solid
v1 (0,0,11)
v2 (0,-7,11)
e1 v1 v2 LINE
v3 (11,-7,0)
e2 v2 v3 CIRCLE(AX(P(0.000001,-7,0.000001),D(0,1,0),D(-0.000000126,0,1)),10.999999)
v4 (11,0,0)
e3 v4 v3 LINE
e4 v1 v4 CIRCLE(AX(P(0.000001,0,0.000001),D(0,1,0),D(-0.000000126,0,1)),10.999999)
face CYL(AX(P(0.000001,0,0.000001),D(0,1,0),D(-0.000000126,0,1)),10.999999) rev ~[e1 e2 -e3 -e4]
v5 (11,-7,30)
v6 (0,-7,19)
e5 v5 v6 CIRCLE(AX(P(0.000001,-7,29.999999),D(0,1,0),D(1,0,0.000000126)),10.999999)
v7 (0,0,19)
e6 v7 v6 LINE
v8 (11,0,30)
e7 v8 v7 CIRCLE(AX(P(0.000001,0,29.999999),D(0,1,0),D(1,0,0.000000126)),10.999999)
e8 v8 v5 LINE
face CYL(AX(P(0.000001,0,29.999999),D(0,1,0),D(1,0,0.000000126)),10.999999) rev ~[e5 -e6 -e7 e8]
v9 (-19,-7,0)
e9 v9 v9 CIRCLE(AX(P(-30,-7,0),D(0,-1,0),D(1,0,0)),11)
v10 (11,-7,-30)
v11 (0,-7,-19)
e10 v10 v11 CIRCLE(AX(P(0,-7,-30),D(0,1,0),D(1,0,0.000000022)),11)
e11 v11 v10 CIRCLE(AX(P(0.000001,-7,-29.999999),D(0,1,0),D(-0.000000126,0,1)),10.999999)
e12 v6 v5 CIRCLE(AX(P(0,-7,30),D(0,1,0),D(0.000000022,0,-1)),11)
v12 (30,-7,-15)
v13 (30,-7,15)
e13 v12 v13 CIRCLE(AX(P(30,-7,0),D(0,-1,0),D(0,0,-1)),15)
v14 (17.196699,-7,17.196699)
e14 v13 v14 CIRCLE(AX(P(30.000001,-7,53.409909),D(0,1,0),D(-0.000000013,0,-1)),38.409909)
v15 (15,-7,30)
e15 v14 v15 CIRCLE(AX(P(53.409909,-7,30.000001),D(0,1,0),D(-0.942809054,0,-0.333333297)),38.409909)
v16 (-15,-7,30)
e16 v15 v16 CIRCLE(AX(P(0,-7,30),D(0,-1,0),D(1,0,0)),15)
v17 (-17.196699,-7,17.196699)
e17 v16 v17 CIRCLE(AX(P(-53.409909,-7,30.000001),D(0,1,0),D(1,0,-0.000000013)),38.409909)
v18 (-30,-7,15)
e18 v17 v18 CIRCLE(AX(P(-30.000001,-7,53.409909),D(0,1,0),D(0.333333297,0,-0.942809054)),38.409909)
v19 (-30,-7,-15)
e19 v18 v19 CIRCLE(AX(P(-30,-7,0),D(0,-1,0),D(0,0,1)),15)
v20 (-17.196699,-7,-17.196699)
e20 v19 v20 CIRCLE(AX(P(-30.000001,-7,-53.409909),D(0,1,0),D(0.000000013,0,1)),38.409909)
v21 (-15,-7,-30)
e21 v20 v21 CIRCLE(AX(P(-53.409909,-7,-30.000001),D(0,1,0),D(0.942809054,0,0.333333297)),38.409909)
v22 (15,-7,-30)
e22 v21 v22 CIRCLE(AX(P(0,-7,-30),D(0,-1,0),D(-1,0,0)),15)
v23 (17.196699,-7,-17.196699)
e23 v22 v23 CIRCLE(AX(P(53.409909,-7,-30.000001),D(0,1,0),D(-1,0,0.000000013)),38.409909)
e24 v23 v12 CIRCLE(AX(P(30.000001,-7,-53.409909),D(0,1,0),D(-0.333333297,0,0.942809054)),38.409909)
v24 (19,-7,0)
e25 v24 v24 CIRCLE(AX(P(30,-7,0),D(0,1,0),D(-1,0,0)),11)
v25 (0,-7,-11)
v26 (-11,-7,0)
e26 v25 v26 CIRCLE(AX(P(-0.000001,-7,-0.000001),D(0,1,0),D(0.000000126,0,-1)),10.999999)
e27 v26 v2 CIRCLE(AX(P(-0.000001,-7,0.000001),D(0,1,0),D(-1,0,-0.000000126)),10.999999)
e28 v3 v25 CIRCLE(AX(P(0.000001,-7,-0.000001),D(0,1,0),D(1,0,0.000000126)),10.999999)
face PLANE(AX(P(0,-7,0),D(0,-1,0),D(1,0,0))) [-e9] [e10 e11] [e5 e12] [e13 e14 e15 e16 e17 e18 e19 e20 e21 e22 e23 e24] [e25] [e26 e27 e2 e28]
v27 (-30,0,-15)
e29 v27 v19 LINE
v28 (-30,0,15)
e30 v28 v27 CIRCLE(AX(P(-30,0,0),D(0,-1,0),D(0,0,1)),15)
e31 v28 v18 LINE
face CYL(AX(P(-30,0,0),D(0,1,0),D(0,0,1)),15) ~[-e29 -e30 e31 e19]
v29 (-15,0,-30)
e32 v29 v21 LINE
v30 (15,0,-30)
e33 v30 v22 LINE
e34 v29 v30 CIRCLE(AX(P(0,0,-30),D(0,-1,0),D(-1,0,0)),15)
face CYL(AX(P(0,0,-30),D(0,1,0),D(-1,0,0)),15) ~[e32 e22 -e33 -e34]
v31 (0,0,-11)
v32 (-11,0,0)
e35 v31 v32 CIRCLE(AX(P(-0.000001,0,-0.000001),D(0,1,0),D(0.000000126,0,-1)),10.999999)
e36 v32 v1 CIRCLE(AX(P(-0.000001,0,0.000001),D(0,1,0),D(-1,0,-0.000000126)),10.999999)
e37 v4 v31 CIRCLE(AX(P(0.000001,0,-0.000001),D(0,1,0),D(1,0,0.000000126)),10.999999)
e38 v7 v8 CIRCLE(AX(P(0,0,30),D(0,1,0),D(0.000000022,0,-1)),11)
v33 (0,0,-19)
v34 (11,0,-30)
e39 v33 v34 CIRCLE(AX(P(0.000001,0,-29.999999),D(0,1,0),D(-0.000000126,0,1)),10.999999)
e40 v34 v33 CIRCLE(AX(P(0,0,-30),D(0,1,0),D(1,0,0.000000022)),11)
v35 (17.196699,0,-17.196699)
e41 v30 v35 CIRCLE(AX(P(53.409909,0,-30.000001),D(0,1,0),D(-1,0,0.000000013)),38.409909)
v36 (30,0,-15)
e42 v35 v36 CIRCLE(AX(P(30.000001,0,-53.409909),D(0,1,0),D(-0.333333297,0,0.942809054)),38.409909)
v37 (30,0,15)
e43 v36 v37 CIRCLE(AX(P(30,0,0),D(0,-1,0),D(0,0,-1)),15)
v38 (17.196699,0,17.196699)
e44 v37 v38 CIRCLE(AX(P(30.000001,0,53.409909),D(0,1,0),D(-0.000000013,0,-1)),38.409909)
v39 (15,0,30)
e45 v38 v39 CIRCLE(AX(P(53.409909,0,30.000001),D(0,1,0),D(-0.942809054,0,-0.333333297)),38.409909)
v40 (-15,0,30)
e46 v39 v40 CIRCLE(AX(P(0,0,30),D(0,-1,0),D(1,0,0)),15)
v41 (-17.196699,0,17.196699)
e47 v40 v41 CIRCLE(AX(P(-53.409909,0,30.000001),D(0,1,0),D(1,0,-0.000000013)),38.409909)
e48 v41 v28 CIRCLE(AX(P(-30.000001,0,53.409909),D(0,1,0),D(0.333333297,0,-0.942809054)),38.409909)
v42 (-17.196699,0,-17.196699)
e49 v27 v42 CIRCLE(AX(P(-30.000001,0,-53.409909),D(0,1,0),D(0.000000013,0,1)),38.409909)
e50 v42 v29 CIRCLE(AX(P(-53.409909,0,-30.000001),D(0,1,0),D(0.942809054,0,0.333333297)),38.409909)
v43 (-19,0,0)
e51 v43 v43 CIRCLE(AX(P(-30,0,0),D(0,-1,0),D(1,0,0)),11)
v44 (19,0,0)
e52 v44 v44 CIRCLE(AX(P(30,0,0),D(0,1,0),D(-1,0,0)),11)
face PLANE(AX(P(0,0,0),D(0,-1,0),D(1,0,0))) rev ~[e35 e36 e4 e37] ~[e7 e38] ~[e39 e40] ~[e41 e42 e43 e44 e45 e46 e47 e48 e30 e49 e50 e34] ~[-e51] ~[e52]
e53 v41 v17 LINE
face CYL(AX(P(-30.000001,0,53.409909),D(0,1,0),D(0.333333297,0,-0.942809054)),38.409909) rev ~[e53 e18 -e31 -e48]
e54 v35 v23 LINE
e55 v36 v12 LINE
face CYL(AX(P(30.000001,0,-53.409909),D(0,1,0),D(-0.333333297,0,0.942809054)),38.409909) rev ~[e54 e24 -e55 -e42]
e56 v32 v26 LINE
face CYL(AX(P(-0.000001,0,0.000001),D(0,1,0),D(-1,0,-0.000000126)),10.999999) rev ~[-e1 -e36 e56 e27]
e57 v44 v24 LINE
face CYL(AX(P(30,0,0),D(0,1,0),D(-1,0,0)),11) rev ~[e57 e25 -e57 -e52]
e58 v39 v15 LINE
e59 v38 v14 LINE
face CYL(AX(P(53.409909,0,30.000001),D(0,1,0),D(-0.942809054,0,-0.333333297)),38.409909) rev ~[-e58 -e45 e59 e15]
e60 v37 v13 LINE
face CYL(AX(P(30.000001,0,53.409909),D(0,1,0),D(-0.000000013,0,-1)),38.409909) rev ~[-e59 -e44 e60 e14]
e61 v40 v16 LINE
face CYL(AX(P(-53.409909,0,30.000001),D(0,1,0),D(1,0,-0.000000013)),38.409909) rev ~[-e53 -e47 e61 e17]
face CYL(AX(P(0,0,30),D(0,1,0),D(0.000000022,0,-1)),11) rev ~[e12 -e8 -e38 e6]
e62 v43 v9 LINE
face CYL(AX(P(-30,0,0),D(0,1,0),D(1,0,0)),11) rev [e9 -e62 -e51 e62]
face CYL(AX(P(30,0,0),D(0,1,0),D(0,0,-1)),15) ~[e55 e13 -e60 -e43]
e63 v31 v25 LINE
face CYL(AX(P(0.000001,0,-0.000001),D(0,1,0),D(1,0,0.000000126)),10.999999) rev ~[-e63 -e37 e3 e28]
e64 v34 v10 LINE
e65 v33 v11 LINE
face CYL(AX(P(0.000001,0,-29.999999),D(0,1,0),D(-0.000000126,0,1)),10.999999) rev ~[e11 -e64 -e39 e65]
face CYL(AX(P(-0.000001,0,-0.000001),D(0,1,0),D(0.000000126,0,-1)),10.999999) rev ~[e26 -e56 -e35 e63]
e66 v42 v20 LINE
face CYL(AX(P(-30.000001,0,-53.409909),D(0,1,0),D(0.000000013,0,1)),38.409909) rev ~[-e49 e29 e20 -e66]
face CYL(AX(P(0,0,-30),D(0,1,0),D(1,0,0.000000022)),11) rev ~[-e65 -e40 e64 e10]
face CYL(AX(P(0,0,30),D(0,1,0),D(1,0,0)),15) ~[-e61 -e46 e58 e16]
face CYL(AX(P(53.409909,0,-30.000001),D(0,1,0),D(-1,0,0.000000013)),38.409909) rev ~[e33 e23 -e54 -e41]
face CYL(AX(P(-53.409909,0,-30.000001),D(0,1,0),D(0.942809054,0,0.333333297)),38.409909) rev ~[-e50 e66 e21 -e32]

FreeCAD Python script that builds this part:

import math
import FreeCAD as App
import Part
import Sketcher

doc = App.newDocument("Part")
body = doc.addObject("PartDesign::Body", "Body")

# Sketch on XZ plane
sketch1 = body.newObject("Sketcher::SketchObject", "Sketch")
sketch1.AttachmentSupport = (doc.getObject("XZ_Plane"), [""])
sketch1.MapMode = "FlatFace"
sketch1.addGeometry(Part.ArcOfCircle(Part.Circle(App.Vector(30, 0, 0), App.Vector(0, 0, 1), 15), math.radians(-90), math.radians(90)), False)
sketch1.addGeometry(Part.ArcOfCircle(Part.Circle(App.Vector(30, 53, 0), App.Vector(0, 0, 1), 38), math.radians(-109.47), math.radians(-90)), False)
sketch1.addGeometry(Part.ArcOfCircle(Part.Circle(App.Vector(53, 30, 0), App.Vector(0, 0, 1), 38), math.radians(-180), math.radians(-160.53)), False)
sketch1.addGeometry(Part.ArcOfCircle(Part.Circle(App.Vector(0, 30, 0), App.Vector(0, 0, 1), 15), math.radians(0), math.radians(180)), False)
sketch1.addGeometry(Part.ArcOfCircle(Part.Circle(App.Vector(-53, 30, 0), App.Vector(0, 0, 1), 38), math.radians(-19.47), math.radians(0)), False)
sketch1.addGeometry(Part.ArcOfCircle(Part.Circle(App.Vector(-30, 53, 0), App.Vector(0, 0, 1), 38), math.radians(-90), math.radians(-70.53)), False)
sketch1.addGeometry(Part.ArcOfCircle(Part.Circle(App.Vector(-30, 0, 0), App.Vector(0, 0, 1), 15), math.radians(90), math.radians(270)), False)
sketch1.addGeometry(Part.ArcOfCircle(Part.Circle(App.Vector(-30, -53, 0), App.Vector(0, 0, 1), 38), math.radians(70.53), math.radians(90)), False)
sketch1.addGeometry(Part.ArcOfCircle(Part.Circle(App.Vector(-53, -30, 0), App.Vector(0, 0, 1), 38), math.radians(0), math.radians(19.47)), False)
sketch1.addGeometry(Part.ArcOfCircle(Part.Circle(App.Vector(0, -30, 0), App.Vector(0, 0, 1), 15), math.radians(180), math.radians(360)), False)
sketch1.addGeometry(Part.ArcOfCircle(Part.Circle(App.Vector(53, -30, 0), App.Vector(0, 0, 1), 38), math.radians(160.53), math.radians(180)), False)
sketch1.addGeometry(Part.ArcOfCircle(Part.Circle(App.Vector(30, -53, 0), App.Vector(0, 0, 1), 38), math.radians(90), math.radians(109.47)), False)
sketch1.addGeometry(Part.ArcOfCircle(Part.Circle(App.Vector(0, -30, 0), App.Vector(0, 0, 1), 11), math.radians(0), math.radians(90)), False)
sketch1.addGeometry(Part.ArcOfCircle(Part.Circle(App.Vector(0, -30, 0), App.Vector(0, 0, 1), 11), math.radians(90), math.radians(360)), False)
sketch1.addGeometry(Part.Circle(App.Vector(-30, 0, 0), App.Vector(0, 0, 1), 11), False)
sketch1.addGeometry(Part.ArcOfCircle(Part.Circle(App.Vector(0, 30, 0), App.Vector(0, 0, 1), 11), math.radians(0), math.radians(270)), False)
sketch1.addGeometry(Part.ArcOfCircle(Part.Circle(App.Vector(0, 30, 0), App.Vector(0, 0, 1), 11), math.radians(-90), math.radians(0)), False)
sketch1.addGeometry(Part.ArcOfCircle(Part.Circle(App.Vector(0, 0, 0), App.Vector(0, 0, 1), 11), math.radians(0), math.radians(90)), False)
sketch1.addGeometry(Part.ArcOfCircle(Part.Circle(App.Vector(0, 0, 0), App.Vector(0, 0, 1), 11), math.radians(-90), math.radians(0)), False)
sketch1.addGeometry(Part.ArcOfCircle(Part.Circle(App.Vector(0, 0, 0), App.Vector(0, 0, 1), 11), math.radians(180), math.radians(270)), False)
sketch1.addGeometry(Part.ArcOfCircle(Part.Circle(App.Vector(0, 0, 0), App.Vector(0, 0, 1), 11), math.radians(90), math.radians(180)), False)
sketch1.addGeometry(Part.Circle(App.Vector(30, 0, 0), App.Vector(0, 0, 1), 11), False)
sketch1.addConstraint(Sketcher.Constraint("Tangent", 0, 2, 1, 2))
sketch1.addConstraint(Sketcher.Constraint("Coincident", 1, 1, 2, 2))
sketch1.addConstraint(Sketcher.Constraint("Tangent", 2, 1, 3, 1))
sketch1.addConstraint(Sketcher.Constraint("Tangent", 3, 2, 4, 2))
sketch1.addConstraint(Sketcher.Constraint("Coincident", 4, 1, 5, 2))
sketch1.addConstraint(Sketcher.Constraint("Tangent", 5, 1, 6, 1))
sketch1.addConstraint(Sketcher.Constraint("Tangent", 6, 2, 7, 2))
sketch1.addConstraint(Sketcher.Constraint("Coincident", 7, 1, 8, 2))
sketch1.addConstraint(Sketcher.Constraint("Tangent", 8, 1, 9, 1))
sketch1.addConstraint(Sketcher.Constraint("Tangent", 9, 2, 10, 2))
sketch1.addConstraint(Sketcher.Constraint("Coincident", 10, 1, 11, 2))
sketch1.addConstraint(Sketcher.Constraint("Tangent", 11, 1, 0, 1))
sketch1.addConstraint(Sketcher.Constraint("Tangent", 12, 1, 13, 2))
sketch1.addConstraint(Sketcher.Constraint("Coincident", 13, 1, 12, 2))
sketch1.addConstraint(Sketcher.Constraint("Tangent", 15, 1, 16, 2))
sketch1.addConstraint(Sketcher.Constraint("Coincident", 16, 1, 15, 2))
sketch1.addConstraint(Sketcher.Constraint("Tangent", 17, 1, 18, 2))
sketch1.addConstraint(Sketcher.Constraint("Tangent", 18, 1, 19, 2))
sketch1.addConstraint(Sketcher.Constraint("Tangent", 19, 1, 20, 2))
sketch1.addConstraint(Sketcher.Constraint("Tangent", 20, 1, 17, 2))
sketch1.addConstraint(Sketcher.Constraint("Coincident", 17, 3, -1, 1))
sketch1.addConstraint(Sketcher.Constraint("Coincident", 12, 3, 9, 3))
sketch1.addConstraint(Sketcher.Constraint("Coincident", 14, 3, 6, 3))
sketch1.addConstraint(Sketcher.Constraint("Coincident", 15, 3, 3, 3))
sketch1.addConstraint(Sketcher.Constraint("Coincident", 21, 3, 0, 3))
sketch1.addConstraint(Sketcher.Constraint("Equal", 1, 2))
sketch1.addConstraint(Sketcher.Constraint("Equal", 0, 3))
sketch1.addConstraint(Sketcher.Constraint("Equal", 2, 4))
sketch1.addConstraint(Sketcher.Constraint("Equal", 4, 5))
sketch1.addConstraint(Sketcher.Constraint("Equal", 3, 6))
sketch1.addConstraint(Sketcher.Constraint("Equal", 5, 7))
sketch1.addConstraint(Sketcher.Constraint("Equal", 7, 8))
sketch1.addConstraint(Sketcher.Constraint("Equal", 6, 9))
sketch1.addConstraint(Sketcher.Constraint("Equal", 8, 10))
sketch1.addConstraint(Sketcher.Constraint("Equal", 10, 11))
sketch1.addConstraint(Sketcher.Constraint("Equal", 13, 14))
sketch1.addConstraint(Sketcher.Constraint("Equal", 14, 15))
sketch1.addConstraint(Sketcher.Constraint("Equal", 16, 17))
sketch1.addConstraint(Sketcher.Constraint("Equal", 17, 18))
sketch1.addConstraint(Sketcher.Constraint("Equal", 20, 21))
sketch1.addConstraint(Sketcher.Constraint("Symmetric", 0, 3, 6, 3, -1, 1))
sketch1.addConstraint(Sketcher.Constraint("Symmetric", 2, 3, 8, 3, -1, 1))
sketch1.addConstraint(Sketcher.Constraint("Symmetric", 4, 1, 10, 1, -1, 1))
sketch1.addConstraint(Sketcher.Constraint("Symmetric", 13, 1, 16, 1, -1, 1))
sketch1.addConstraint(Sketcher.Constraint("Symmetric", 2, 3, 4, 3, -2))
sketch1.addConstraint(Sketcher.Constraint("Symmetric", 1, 3, 5, 3, -2))
sketch1.addConstraint(Sketcher.Constraint("PointOnObject", 13, 1, -2))
sketch1.addConstraint(Sketcher.Constraint("PointOnObject", 17, 1, -1))
sketch1.addConstraint(Sketcher.Constraint("PointOnObject", 18, 1, -2))
sketch1.addConstraint(Sketcher.Constraint("PointOnObject", 19, 1, -1))
sketch1.addConstraint(Sketcher.Constraint("PointOnObject", 20, 1, -2))
sketch1.addConstraint(Sketcher.Constraint("Horizontal", 2, 3, 3, 3))
sketch1.addConstraint(Sketcher.Constraint("Horizontal", 7, 1, 10, 1))
sketch1.addConstraint(Sketcher.Constraint("Horizontal", 9, 2, 12, 1))
sketch1.addConstraint(Sketcher.Constraint("Horizontal", 3, 2, 15, 1))
sketch1.addConstraint(Sketcher.Constraint("Vertical", 0, 3, 1, 3))
sketch1.addConstraint(Sketcher.Constraint("Diameter", 14, 22.0))
sketch1.addConstraint(Sketcher.Constraint("Radius", 0, 15.0))
sketch1.addConstraint(Sketcher.Constraint("DistanceX", -1, 1, 0, 3, 30.0))
sketch1.addConstraint(Sketcher.Constraint("DistanceY", -1, 1, 2, 3, 30.000001))
sketch1.addConstraint(Sketcher.Constraint("Radius", 1, 38.409909))
pad1 = body.newObject("PartDesign::Pad", "Pad")
pad1.Profile = sketch1
pad1.Length = 7

doc.recompute()
